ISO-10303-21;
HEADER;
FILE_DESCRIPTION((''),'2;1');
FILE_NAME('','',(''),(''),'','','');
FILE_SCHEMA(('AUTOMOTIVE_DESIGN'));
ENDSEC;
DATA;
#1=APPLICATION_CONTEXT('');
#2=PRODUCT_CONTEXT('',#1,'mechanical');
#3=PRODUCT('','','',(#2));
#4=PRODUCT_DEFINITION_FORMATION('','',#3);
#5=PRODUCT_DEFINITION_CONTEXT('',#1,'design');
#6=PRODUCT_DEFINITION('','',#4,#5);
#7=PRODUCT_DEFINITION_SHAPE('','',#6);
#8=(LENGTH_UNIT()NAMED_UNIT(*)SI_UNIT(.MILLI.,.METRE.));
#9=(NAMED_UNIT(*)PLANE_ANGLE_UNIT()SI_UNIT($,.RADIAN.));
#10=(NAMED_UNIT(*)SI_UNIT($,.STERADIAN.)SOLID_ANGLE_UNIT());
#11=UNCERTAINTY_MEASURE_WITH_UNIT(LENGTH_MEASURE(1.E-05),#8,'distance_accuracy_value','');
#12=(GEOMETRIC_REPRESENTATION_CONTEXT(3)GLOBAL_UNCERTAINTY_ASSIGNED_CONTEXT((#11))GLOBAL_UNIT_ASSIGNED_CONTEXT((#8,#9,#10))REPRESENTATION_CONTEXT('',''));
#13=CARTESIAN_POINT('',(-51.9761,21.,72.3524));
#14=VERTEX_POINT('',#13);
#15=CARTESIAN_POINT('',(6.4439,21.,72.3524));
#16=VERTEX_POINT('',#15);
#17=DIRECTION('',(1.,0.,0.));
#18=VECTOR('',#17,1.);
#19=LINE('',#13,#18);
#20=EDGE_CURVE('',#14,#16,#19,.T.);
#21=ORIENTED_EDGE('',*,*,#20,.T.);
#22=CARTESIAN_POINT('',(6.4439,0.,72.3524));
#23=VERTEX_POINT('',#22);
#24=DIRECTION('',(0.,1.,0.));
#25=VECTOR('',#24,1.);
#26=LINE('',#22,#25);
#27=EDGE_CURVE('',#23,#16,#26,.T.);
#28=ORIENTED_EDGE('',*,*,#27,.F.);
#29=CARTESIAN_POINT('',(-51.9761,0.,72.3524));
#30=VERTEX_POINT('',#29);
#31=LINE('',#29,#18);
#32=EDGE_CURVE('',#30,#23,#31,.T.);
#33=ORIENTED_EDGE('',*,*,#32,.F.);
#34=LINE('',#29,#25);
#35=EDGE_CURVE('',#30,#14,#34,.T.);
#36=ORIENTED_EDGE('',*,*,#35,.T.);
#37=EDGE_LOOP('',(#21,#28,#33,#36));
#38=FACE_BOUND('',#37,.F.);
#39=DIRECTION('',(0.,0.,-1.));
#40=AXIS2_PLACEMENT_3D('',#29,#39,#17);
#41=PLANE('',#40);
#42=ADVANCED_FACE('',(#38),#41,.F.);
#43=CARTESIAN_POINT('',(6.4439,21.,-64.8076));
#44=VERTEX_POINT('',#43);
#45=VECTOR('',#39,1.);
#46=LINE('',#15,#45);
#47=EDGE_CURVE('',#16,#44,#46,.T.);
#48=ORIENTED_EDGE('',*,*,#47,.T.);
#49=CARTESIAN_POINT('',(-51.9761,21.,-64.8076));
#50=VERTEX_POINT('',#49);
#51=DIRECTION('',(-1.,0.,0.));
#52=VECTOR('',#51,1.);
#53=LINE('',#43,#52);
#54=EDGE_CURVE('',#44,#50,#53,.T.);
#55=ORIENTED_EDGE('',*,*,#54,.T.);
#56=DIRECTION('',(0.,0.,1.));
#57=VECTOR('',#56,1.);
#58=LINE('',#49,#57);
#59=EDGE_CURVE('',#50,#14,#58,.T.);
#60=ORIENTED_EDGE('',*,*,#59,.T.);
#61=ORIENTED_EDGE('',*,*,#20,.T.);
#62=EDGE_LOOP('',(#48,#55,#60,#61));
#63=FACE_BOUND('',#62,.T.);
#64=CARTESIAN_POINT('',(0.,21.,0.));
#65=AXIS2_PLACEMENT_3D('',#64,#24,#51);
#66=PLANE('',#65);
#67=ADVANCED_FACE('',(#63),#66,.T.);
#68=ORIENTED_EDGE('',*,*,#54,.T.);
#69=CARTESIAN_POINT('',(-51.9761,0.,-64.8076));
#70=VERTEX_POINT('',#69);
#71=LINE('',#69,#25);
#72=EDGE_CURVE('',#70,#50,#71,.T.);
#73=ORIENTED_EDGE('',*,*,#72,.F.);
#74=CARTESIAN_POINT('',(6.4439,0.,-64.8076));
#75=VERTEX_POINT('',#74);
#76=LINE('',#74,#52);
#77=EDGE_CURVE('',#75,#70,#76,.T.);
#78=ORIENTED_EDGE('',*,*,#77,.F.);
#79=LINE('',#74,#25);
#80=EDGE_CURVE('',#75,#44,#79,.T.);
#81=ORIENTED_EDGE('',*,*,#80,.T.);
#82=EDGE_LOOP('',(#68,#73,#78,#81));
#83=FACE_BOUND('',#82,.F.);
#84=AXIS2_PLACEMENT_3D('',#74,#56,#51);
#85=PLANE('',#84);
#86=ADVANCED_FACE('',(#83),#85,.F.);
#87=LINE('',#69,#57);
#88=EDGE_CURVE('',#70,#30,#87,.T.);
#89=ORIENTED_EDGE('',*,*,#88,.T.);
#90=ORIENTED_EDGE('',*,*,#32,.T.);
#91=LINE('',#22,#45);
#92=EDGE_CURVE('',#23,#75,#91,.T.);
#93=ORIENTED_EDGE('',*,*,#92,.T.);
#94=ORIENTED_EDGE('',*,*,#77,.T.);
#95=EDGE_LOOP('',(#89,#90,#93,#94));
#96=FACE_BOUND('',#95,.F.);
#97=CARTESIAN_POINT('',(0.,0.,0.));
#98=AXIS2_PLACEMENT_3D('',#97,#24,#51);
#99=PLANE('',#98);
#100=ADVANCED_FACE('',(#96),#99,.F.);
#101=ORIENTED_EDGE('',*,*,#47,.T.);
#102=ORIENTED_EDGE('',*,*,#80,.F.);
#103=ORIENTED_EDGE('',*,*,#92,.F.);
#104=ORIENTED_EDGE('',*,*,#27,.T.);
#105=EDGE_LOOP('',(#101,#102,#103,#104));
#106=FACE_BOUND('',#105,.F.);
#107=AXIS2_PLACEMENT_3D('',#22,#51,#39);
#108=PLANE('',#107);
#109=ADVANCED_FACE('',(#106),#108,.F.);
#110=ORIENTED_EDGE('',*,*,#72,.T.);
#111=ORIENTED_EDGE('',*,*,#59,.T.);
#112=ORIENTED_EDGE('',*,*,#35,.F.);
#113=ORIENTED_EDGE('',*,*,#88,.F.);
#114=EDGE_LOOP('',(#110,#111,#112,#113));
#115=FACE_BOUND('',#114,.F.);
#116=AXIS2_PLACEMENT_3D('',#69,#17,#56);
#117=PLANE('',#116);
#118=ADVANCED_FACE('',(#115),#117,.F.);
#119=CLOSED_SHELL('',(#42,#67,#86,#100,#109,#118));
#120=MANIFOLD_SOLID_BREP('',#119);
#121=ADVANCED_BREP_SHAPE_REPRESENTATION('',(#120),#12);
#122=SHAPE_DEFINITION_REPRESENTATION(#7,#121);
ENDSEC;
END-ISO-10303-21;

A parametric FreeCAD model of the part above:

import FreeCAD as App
import Part
import Sketcher

V = App.Vector
Q = App.Units.Quantity


def add_polygon(sketch, points):
    """Adds a closed chain of lines whose ends are joined by coincident constraints."""
    first, n = sketch.GeometryCount, len(points)
    for a, b in zip(points, points[1:] + points[:1]):
        sketch.addGeometry(Part.LineSegment(App.Vector(*a, 0), App.Vector(*b, 0)), False)
    for i in range(n):
        sketch.addConstraint(Sketcher.Constraint("Coincident", first + i, 2, first + (i + 1) % n, 1))

doc = App.newDocument("Part")
body = doc.addObject("PartDesign::Body", "Body")

sketch1 = body.newObject("Sketcher::SketchObject", "Sketch")
sketch1.AttachmentSupport = (doc.getObject("XZ_Plane"), [""])
sketch1.MapMode = "FlatFace"
add_polygon(sketch1, [(-52, -65), (-52, 72), (6, 72), (6, -65)])
sketch1.addConstraint(Sketcher.Constraint("Vertical", 0))
sketch1.addConstraint(Sketcher.Constraint("Horizontal", 1))
sketch1.addConstraint(Sketcher.Constraint("Vertical", 2))
sketch1.addConstraint(Sketcher.Constraint("Horizontal", 3))
sketch1.addConstraint(Sketcher.Constraint("DistanceX", 1, 1, 1, 2, Q("2.3 in")))
sketch1.addConstraint(Sketcher.Constraint("DistanceY", 0, 1, 0, 2, Q("5.4 in")))
sketch1.addConstraint(Sketcher.Constraint("DistanceX", 0, 2, -1, 1, Q("2.0463 in")))
sketch1.addConstraint(Sketcher.Constraint("DistanceY", -1, 1, 0, 2, 72.3524))
pad1 = body.newObject("PartDesign::Pad", "Pad")
pad1.Profile = sketch1
pad1.Length = 21
pad1.Reversed = True

doc.recompute()
